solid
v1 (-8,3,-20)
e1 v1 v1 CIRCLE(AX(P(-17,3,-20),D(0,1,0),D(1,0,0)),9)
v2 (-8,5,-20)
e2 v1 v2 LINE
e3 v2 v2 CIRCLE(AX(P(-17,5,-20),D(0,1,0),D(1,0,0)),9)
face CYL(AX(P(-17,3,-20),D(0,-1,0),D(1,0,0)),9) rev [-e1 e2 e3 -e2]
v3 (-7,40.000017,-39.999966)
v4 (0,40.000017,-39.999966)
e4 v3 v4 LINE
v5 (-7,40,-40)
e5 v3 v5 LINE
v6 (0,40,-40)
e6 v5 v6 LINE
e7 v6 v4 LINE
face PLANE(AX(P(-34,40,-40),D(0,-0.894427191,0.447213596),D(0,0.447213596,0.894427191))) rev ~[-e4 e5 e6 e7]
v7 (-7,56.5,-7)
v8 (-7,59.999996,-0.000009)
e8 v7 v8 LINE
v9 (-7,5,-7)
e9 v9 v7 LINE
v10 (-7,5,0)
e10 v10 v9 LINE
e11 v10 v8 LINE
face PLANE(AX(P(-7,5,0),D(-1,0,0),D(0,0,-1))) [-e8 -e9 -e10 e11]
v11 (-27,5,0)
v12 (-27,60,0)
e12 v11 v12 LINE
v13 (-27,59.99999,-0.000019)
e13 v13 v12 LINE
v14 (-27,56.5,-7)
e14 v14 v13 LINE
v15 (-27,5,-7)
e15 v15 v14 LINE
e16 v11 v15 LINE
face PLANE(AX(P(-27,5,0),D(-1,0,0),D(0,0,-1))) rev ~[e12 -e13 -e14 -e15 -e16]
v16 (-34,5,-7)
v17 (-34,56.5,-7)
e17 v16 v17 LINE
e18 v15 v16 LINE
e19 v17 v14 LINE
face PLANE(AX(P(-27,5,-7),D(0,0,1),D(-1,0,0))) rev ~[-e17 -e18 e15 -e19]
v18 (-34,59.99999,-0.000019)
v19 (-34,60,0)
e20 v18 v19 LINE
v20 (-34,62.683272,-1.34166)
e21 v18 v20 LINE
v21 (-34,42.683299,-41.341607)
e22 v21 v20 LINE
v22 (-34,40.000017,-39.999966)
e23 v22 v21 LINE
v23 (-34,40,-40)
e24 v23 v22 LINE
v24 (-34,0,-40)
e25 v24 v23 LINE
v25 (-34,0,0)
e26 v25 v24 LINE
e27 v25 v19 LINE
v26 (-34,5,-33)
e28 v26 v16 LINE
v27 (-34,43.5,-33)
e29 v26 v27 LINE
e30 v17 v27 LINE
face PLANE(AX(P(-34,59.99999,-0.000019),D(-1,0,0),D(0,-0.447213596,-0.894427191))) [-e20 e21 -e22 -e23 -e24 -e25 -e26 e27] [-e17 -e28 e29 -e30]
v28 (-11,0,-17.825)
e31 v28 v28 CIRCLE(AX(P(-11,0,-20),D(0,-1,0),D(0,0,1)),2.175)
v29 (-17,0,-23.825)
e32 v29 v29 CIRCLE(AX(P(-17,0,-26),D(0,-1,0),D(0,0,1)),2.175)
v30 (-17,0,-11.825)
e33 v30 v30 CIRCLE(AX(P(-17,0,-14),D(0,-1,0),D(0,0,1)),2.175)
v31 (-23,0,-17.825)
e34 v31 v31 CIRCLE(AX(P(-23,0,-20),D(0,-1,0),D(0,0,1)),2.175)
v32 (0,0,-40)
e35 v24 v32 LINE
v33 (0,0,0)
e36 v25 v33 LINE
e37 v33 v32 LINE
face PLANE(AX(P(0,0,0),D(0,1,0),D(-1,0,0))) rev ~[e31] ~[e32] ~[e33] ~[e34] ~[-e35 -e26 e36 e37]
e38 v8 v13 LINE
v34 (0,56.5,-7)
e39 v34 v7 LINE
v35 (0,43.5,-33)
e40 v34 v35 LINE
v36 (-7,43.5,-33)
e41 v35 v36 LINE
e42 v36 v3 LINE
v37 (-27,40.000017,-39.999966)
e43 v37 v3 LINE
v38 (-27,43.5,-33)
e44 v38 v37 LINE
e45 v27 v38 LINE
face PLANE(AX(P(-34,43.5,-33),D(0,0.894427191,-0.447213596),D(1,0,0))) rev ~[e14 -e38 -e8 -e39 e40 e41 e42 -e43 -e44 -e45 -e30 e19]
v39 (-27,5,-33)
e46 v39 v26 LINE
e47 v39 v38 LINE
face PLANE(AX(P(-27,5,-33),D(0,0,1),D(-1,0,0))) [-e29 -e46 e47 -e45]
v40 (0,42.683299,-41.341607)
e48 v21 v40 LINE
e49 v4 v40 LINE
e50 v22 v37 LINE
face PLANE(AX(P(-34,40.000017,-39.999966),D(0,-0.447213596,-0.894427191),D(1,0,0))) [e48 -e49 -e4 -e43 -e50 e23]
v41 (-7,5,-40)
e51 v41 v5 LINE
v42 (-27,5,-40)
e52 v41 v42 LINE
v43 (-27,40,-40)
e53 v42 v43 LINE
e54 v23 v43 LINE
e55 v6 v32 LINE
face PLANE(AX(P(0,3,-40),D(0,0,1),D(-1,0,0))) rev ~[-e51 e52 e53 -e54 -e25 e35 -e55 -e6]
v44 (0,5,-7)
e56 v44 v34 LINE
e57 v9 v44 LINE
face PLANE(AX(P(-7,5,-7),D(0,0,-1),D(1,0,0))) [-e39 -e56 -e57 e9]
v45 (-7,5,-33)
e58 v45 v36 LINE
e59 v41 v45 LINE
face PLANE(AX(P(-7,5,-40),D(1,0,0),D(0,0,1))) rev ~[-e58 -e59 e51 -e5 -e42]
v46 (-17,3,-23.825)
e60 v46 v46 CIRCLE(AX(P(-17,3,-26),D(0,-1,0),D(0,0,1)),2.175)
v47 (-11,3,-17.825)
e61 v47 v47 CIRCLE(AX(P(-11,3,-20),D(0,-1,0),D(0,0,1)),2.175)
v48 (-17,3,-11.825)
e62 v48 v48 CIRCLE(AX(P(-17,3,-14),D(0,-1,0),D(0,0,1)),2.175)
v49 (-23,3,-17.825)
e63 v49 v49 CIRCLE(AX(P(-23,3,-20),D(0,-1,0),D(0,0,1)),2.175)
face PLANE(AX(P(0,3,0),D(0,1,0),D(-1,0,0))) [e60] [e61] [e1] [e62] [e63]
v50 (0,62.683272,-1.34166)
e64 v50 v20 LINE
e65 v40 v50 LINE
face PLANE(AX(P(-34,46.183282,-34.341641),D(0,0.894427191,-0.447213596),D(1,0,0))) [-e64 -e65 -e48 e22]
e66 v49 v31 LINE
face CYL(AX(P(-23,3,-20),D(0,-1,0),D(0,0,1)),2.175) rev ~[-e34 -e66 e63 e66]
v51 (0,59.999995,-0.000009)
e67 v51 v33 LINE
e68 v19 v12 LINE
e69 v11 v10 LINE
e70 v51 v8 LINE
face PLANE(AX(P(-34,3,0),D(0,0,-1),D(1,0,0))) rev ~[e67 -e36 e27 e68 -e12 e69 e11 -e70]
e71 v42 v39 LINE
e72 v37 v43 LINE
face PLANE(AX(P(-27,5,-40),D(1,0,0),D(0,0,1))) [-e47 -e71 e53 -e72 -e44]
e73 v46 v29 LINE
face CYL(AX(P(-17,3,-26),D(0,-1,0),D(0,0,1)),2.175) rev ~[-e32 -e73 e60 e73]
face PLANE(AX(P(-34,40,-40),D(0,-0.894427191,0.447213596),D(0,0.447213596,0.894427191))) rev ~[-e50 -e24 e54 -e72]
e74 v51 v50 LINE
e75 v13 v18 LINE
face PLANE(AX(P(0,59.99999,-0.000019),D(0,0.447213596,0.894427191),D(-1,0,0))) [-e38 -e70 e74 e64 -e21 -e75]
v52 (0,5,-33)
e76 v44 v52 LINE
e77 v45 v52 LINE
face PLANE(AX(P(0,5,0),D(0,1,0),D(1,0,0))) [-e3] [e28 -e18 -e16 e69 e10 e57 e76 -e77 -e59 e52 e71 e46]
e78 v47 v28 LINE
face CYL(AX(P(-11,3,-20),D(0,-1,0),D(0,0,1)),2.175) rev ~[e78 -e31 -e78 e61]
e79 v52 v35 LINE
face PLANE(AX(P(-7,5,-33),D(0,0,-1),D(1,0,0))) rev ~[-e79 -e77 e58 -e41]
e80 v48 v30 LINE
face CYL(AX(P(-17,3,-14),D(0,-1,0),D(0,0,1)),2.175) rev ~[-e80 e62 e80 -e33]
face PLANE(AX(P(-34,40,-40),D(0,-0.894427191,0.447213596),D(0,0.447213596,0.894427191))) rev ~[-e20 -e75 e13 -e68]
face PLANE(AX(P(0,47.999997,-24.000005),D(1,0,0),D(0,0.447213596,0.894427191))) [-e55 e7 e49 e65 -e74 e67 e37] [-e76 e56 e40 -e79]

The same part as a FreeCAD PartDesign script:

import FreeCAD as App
import Part
import Sketcher
Q = App.Units.Quantity

doc = App.newDocument("Part")
body = doc.addObject("PartDesign::Body", "Body")

# Sketch on XZ plane
sketch1 = body.newObject("Sketcher::SketchObject", "Sketch")
sketch1.AttachmentSupport = (doc.getObject("XZ_Plane"), [""])
sketch1.MapMode = "FlatFace"
sketch1.addGeometry(Part.LineSegment(App.Vector(0, 0, 0), App.Vector(0, -40, 0)), False)
sketch1.addGeometry(Part.LineSegment(App.Vector(0, -40, 0), App.Vector(-34, -40, 0)), False)
sketch1.addGeometry(Part.LineSegment(App.Vector(-34, -40, 0), App.Vector(-34, 0, 0)), False)
sketch1.addGeometry(Part.LineSegment(App.Vector(-34, 0, 0), App.Vector(0, 0, 0)), False)
sketch1.addConstraint(Sketcher.Constraint("Coincident", 0, 2, 1, 1))
sketch1.addConstraint(Sketcher.Constraint("Coincident", 1, 2, 2, 1))
sketch1.addConstraint(Sketcher.Constraint("Coincident", 2, 2, 3, 1))
sketch1.addConstraint(Sketcher.Constraint("Coincident", 3, 2, 0, 1))
sketch1.addConstraint(Sketcher.Constraint("Vertical", 0))
sketch1.addConstraint(Sketcher.Constraint("Horizontal", 1))
sketch1.addConstraint(Sketcher.Constraint("Vertical", 2))
sketch1.addConstraint(Sketcher.Constraint("Horizontal", 3))
sketch1.addConstraint(Sketcher.Constraint("Coincident", 3, 2, -1, 1))
sketch1.addConstraint(Sketcher.Constraint("DistanceX", 1, 2, 1, 1, Q("34 mm")))
sketch1.addConstraint(Sketcher.Constraint("DistanceY", 0, 2, 0, 1, Q("40 mm")))
pad1 = body.newObject("PartDesign::Pad", "Pad")
pad1.Profile = sketch1
pad1.Length = 3
pad1.Reversed = True

# Sketch on XZ plane
sketch2 = body.newObject("Sketcher::SketchObject", "Sketch001")
sketch2.AttachmentSupport = (doc.getObject("XZ_Plane"), [""])
sketch2.MapMode = "FlatFace"
sketch2.AttachmentOffset = App.Placement(App.Vector(0, 0, -3), App.Rotation())
sketch2.addGeometry(Part.LineSegment(App.Vector(0, -40, 0), App.Vector(-34, -40, 0)), False)
sketch2.addGeometry(Part.LineSegment(App.Vector(-34, -40, 0), App.Vector(-34, 0, 0)), False)
sketch2.addGeometry(Part.LineSegment(App.Vector(-34, 0, 0), App.Vector(0, 0, 0)), False)
sketch2.addGeometry(Part.LineSegment(App.Vector(0, 0, 0), App.Vector(0, -40, 0)), False)
sketch2.addGeometry(Part.Circle(App.Vector(-17, -20, 0), App.Vector(0, 0, 1), 9), False)
sketch2.addConstraint(Sketcher.Constraint("Coincident", 0, 2, 1, 1))
sketch2.addConstraint(Sketcher.Constraint("Coincident", 1, 2, 2, 1))
sketch2.addConstraint(Sketcher.Constraint("Coincident", 2, 2, 3, 1))
sketch2.addConstraint(Sketcher.Constraint("Coincident", 3, 2, 0, 1))
sketch2.addConstraint(Sketcher.Constraint("Horizontal", 0))
sketch2.addConstraint(Sketcher.Constraint("Vertical", 1))
sketch2.addConstraint(Sketcher.Constraint("Horizontal", 2))
sketch2.addConstraint(Sketcher.Constraint("Vertical", 3))
sketch2.addConstraint(Sketcher.Constraint("Coincident", 2, 2, -1, 1))
sketch2.addConstraint(Sketcher.Constraint("Diameter", 4, Q("18 mm")))
sketch2.addConstraint(Sketcher.Constraint("DistanceX", 0, 2, 0, 1, Q("34 mm")))
sketch2.addConstraint(Sketcher.Constraint("DistanceY", 1, 1, 1, 2, Q("40 mm")))
sketch2.addConstraint(Sketcher.Constraint("DistanceX", 4, 3, -1, 1, Q("17 mm")))
sketch2.addConstraint(Sketcher.Constraint("DistanceY", 4, 3, -1, 1, Q("20 mm")))
pad2 = body.newObject("PartDesign::Pad", "Pad001")
pad2.Profile = sketch2
pad2.Length = 2
pad2.Reversed = True

# Sketch on XZ plane
sketch3 = body.newObject("Sketcher::SketchObject", "Sketch002")
sketch3.AttachmentSupport = (doc.getObject("XZ_Plane"), [""])
sketch3.MapMode = "FlatFace"
sketch3.AttachmentOffset = App.Placement(App.Vector(0, 0, -3), App.Rotation())
sketch3.addGeometry(Part.Circle(App.Vector(-23, -20, 0), App.Vector(0, 0, 1), 2.175), False)
sketch3.addGeometry(Part.Circle(App.Vector(-17, -26, 0), App.Vector(0, 0, 1), 2.175), False)
sketch3.addGeometry(Part.Circle(App.Vector(-11, -20, 0), App.Vector(0, 0, 1), 2.175), False)
sketch3.addGeometry(Part.Circle(App.Vector(-17, -14, 0), App.Vector(0, 0, 1), 2.175), False)
sketch3.addConstraint(Sketcher.Constraint("Equal", 0, 1))
sketch3.addConstraint(Sketcher.Constraint("Equal", 1, 2))
sketch3.addConstraint(Sketcher.Constraint("Equal", 2, 3))
sketch3.addConstraint(Sketcher.Constraint("Horizontal", 0, 3, 2, 3))
sketch3.addConstraint(Sketcher.Constraint("Vertical", 1, 3, 3, 3))
sketch3.addConstraint(Sketcher.Constraint("Diameter", 0, Q("4.35 mm")))
sketch3.addConstraint(Sketcher.Constraint("DistanceX", 0, 3, -1, 1, Q("23 mm")))
sketch3.addConstraint(Sketcher.Constraint("DistanceY", 0, 3, -1, 1, Q("20 mm")))
sketch3.addConstraint(Sketcher.Constraint("DistanceX", 1, 3, -1, 1, Q("17 mm")))
sketch3.addConstraint(Sketcher.Constraint("DistanceY", 1, 3, -1, 1, Q("26 mm")))
sketch3.addConstraint(Sketcher.Constraint("DistanceX", 2, 3, -1, 1, Q("11 mm")))
sketch3.addConstraint(Sketcher.Constraint("DistanceY", 3, 3, -1, 1, Q("14 mm")))
doc.recompute()
hole = body.newObject("PartDesign::Hole", "Hole")
hole.Profile = sketch3
hole.ThreadType = "None"
hole.Diameter = 4.35
hole.DepthType = "ThroughAll"
hole.Reversed = True

# Sketch on XZ plane
sketch4 = body.newObject("Sketcher::SketchObject", "Sketch003")
sketch4.AttachmentSupport = (doc.getObject("XZ_Plane"), [""])
sketch4.MapMode = "FlatFace"
sketch4.AttachmentOffset = App.Placement(App.Vector(0, 0, -5), App.Rotation())
sketch4.addGeometry(Part.LineSegment(App.Vector(-7, 0, 0), App.Vector(0, 0, 0)), False)
sketch4.addGeometry(Part.LineSegment(App.Vector(0, 0, 0), App.Vector(0, -7, 0)), False)
sketch4.addGeometry(Part.LineSegment(App.Vector(0, -7, 0), App.Vector(-7, -7, 0)), False)
sketch4.addGeometry(Part.LineSegment(App.Vector(-7, -7, 0), App.Vector(-7, 0, 0)), False)
sketch4.addGeometry(Part.LineSegment(App.Vector(0, -33, 0), App.Vector(0, -40, 0)), False)
sketch4.addGeometry(Part.LineSegment(App.Vector(0, -40, 0), App.Vector(-7, -40, 0)), False)
sketch4.addGeometry(Part.LineSegment(App.Vector(-7, -40, 0), App.Vector(-7, -33, 0)), False)
sketch4.addGeometry(Part.LineSegment(App.Vector(-7, -33, 0), App.Vector(0, -33, 0)), False)
sketch4.addGeometry(Part.LineSegment(App.Vector(-27, -7, 0), App.Vector(-34, -7, 0)), False)
sketch4.addGeometry(Part.LineSegment(App.Vector(-34, -7, 0), App.Vector(-34, 0, 0)), False)
sketch4.addGeometry(Part.LineSegment(App.Vector(-34, 0, 0), App.Vector(-27, 0, 0)), False)
sketch4.addGeometry(Part.LineSegment(App.Vector(-27, 0, 0), App.Vector(-27, -7, 0)), False)
sketch4.addGeometry(Part.LineSegment(App.Vector(-27, -33, 0), App.Vector(-27, -40, 0)), False)
sketch4.addGeometry(Part.LineSegment(App.Vector(-27, -40, 0), App.Vector(-34, -40, 0)), False)
sketch4.addGeometry(Part.LineSegment(App.Vector(-34, -40, 0), App.Vector(-34, -33, 0)), False)
sketch4.addGeometry(Part.LineSegment(App.Vector(-34, -33, 0), App.Vector(-27, -33, 0)), False)
sketch4.addConstraint(Sketcher.Constraint("Coincident", 0, 2, 1, 1))
sketch4.addConstraint(Sketcher.Constraint("Coincident", 1, 2, 2, 1))
sketch4.addConstraint(Sketcher.Constraint("Coincident", 2, 2, 3, 1))
sketch4.addConstraint(Sketcher.Constraint("Coincident", 3, 2, 0, 1))
sketch4.addConstraint(Sketcher.Constraint("Coincident", 4, 2, 5, 1))
sketch4.addConstraint(Sketcher.Constraint("Coincident", 5, 2, 6, 1))
sketch4.addConstraint(Sketcher.Constraint("Coincident", 6, 2, 7, 1))
sketch4.addConstraint(Sketcher.Constraint("Coincident", 7, 2, 4, 1))
sketch4.addConstraint(Sketcher.Constraint("Coincident", 8, 2, 9, 1))
sketch4.addConstraint(Sketcher.Constraint("Coincident", 9, 2, 10, 1))
sketch4.addConstraint(Sketcher.Constraint("Coincident", 10, 2, 11, 1))
sketch4.addConstraint(Sketcher.Constraint("Coincident", 11, 2, 8, 1))
sketch4.addConstraint(Sketcher.Constraint("Coincident", 12, 2, 13, 1))
sketch4.addConstraint(Sketcher.Constraint("Coincident", 13, 2, 14, 1))
sketch4.addConstraint(Sketcher.Constraint("Coincident", 14, 2, 15, 1))
sketch4.addConstraint(Sketcher.Constraint("Coincident", 15, 2, 12, 1))
sketch4.addConstraint(Sketcher.Constraint("Horizontal", 0))
sketch4.addConstraint(Sketcher.Constraint("Vertical", 1))
sketch4.addConstraint(Sketcher.Constraint("Horizontal", 2))
sketch4.addConstraint(Sketcher.Constraint("Vertical", 3))
sketch4.addConstraint(Sketcher.Constraint("Vertical", 4))
sketch4.addConstraint(Sketcher.Constraint("Horizontal", 5))
sketch4.addConstraint(Sketcher.Constraint("Vertical", 6))
sketch4.addConstraint(Sketcher.Constraint("Horizontal", 7))
sketch4.addConstraint(Sketcher.Constraint("Horizontal", 8))
sketch4.addConstraint(Sketcher.Constraint("Vertical", 9))
sketch4.addConstraint(Sketcher.Constraint("Horizontal", 10))
sketch4.addConstraint(Sketcher.Constraint("Vertical", 11))
sketch4.addConstraint(Sketcher.Constraint("Vertical", 12))
sketch4.addConstraint(Sketcher.Constraint("Horizontal", 13))
sketch4.addConstraint(Sketcher.Constraint("Vertical", 14))
sketch4.addConstraint(Sketcher.Constraint("Horizontal", 15))
sketch4.addConstraint(Sketcher.Constraint("Coincident", 0, 2, -1, 1))
sketch4.addConstraint(Sketcher.Constraint("PointOnObject", 4, 2, -2))
sketch4.addConstraint(Sketcher.Constraint("PointOnObject", 9, 2, -1))
sketch4.addConstraint(Sketcher.Constraint("Horizontal", 2, 2, 8, 2))
sketch4.addConstraint(Sketcher.Constraint("Horizontal", 5, 2, 12, 2))
sketch4.addConstraint(Sketcher.Constraint("Horizontal", 7, 2, 14, 2))
sketch4.addConstraint(Sketcher.Constraint("Vertical", 3, 2, 5, 2))
sketch4.addConstraint(Sketcher.Constraint("Vertical", 11, 2, 12, 2))
sketch4.addConstraint(Sketcher.Constraint("Vertical", 9, 2, 13, 2))
sketch4.addConstraint(Sketcher.Constraint("Equal", 7, 8))
sketch4.addConstraint(Sketcher.Constraint("Equal", 15, 1))
sketch4.addConstraint(Sketcher.Constraint("Equal", 3, 4))
sketch4.addConstraint(Sketcher.Constraint("DistanceX", 0, 1, 0, 2, Q("7 mm")))
sketch4.addConstraint(Sketcher.Constraint("DistanceY", 4, 2, -1, 1, Q("40 mm")))
sketch4.addConstraint(Sketcher.Constraint("DistanceX", 8, 2, -1, 1, Q("34 mm")))
pad3 = body.newObject("PartDesign::Pad", "Pad002")
pad3.Profile = sketch4
pad3.Length = 55
pad3.Reversed = True

# Sketch on YZ plane
sketch5 = body.newObject("Sketcher::SketchObject", "Sketch004")
sketch5.AttachmentSupport = (doc.getObject("YZ_Plane"), [""])
sketch5.MapMode = "FlatFace"
sketch5.AttachmentOffset = App.Placement(App.Vector(0, 0, -34), App.Rotation())
sketch5.addGeometry(Part.LineSegment(App.Vector(60, 0, 0), App.Vector(60, -40, 0)), False)
sketch5.addGeometry(Part.LineSegment(App.Vector(60, -40, 0), App.Vector(40, -40, 0)), False)
sketch5.addGeometry(Part.LineSegment(App.Vector(40, -40, 0), App.Vector(60, 0, 0)), False)
sketch5.addConstraint(Sketcher.Constraint("Coincident", 0, 2, 1, 1))
sketch5.addConstraint(Sketcher.Constraint("Coincident", 1, 2, 2, 1))
sketch5.addConstraint(Sketcher.Constraint("Coincident", 2, 2, 0, 1))
sketch5.addConstraint(Sketcher.Constraint("Vertical", 0))
sketch5.addConstraint(Sketcher.Constraint("Horizontal", 1))
sketch5.addConstraint(Sketcher.Constraint("PointOnObject", 2, 2, -1))
sketch5.addConstraint(Sketcher.Constraint("DistanceX", 1, 2, 1, 1, Q("20 mm")))
sketch5.addConstraint(Sketcher.Constraint("DistanceY", 0, 2, 0, 1, Q("40 mm")))
sketch5.addConstraint(Sketcher.Constraint("DistanceX", -1, 1, 0, 2, Q("60 mm")))
pocket1 = body.newObject("PartDesign::Pocket", "Pocket")
pocket1.Profile = sketch5
pocket1.Type = "ThroughAll"
pocket1.Reversed = True

# Sketch on an angled plane
sketch6 = body.newObject("Sketcher::SketchObject", "Sketch005")
sketch6.Placement = App.Placement(App.Vector(-34, 43.5, -33), App.Rotation(App.Vector(1, 0, 0), App.Vector(0, -0.447213595, -0.894427191), App.Vector(0, 0.894427191, -0.447213595), "ZXY"))
sketch6.addGeometry(Part.LineSegment(App.Vector(34, -36.8951, 0), App.Vector(34, 7.8262, 0)), False)
sketch6.addGeometry(Part.LineSegment(App.Vector(34, 7.8262, 0), App.Vector(0, 7.8262, 0)), False)
sketch6.addGeometry(Part.LineSegment(App.Vector(0, 7.8262, 0), App.Vector(0, -36.8951, 0)), False)
sketch6.addGeometry(Part.LineSegment(App.Vector(0, -36.8951, 0), App.Vector(34, -36.8951, 0)), False)
sketch6.addConstraint(Sketcher.Constraint("Coincident", 0, 2, 1, 1))
sketch6.addConstraint(Sketcher.Constraint("Coincident", 1, 2, 2, 1))
sketch6.addConstraint(Sketcher.Constraint("Coincident", 2, 2, 3, 1))
sketch6.addConstraint(Sketcher.Constraint("Coincident", 3, 2, 0, 1))
sketch6.addConstraint(Sketcher.Constraint("Vertical", 0))
sketch6.addConstraint(Sketcher.Constraint("Horizontal", 1))
sketch6.addConstraint(Sketcher.Constraint("Vertical", 2))
sketch6.addConstraint(Sketcher.Constraint("Horizontal", 3))
sketch6.addConstraint(Sketcher.Constraint("PointOnObject", 1, 2, -2))
sketch6.addConstraint(Sketcher.Constraint("DistanceX", 1, 2, 1, 1, Q("34 mm")))
sketch6.addConstraint(Sketcher.Constraint("DistanceY", 0, 1, 0, 2, Q("44.7213 mm")))
sketch6.addConstraint(Sketcher.Constraint("DistanceY", 2, 2, -1, 1, Q("36.895 mm")))
pad4 = body.newObject("PartDesign::Pad", "Pad003")
pad4.Profile = sketch6
pad4.Length = 3

doc.recompute()
